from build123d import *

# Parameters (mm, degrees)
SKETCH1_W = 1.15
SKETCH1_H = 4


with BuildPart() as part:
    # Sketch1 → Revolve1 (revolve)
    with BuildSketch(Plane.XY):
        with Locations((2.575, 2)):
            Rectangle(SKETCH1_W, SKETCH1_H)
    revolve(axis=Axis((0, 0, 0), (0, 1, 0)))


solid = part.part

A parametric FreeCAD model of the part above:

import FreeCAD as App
import Part
import Sketcher

V = App.Vector
Q = App.Units.Quantity


def add_polygon(sketch, points):
    """Adds a closed chain of lines whose ends are joined by coincident constraints."""
    first, n = sketch.GeometryCount, len(points)
    for a, b in zip(points, points[1:] + points[:1]):
        sketch.addGeometry(Part.LineSegment(App.Vector(*a, 0), App.Vector(*b, 0)), False)
    for i in range(n):
        sketch.addConstraint(Sketcher.Constraint("Coincident", first + i, 2, first + (i + 1) % n, 1))

doc = App.newDocument("Part")
body = doc.addObject("PartDesign::Body", "Body")

sketch1 = body.newObject("Sketcher::SketchObject", "Sketch")
sketch1.AttachmentSupport = (doc.getObject("XY_Plane"), [""])
sketch1.MapMode = "FlatFace"
add_polygon(sketch1, [(2, 4), (2, 0), (3.15, 0), (3.15, 4)])
sketch1.addConstraint(Sketcher.Constraint("Vertical", 0))
sketch1.addConstraint(Sketcher.Constraint("Horizontal", 1))
sketch1.addConstraint(Sketcher.Constraint("Vertical", 2))
sketch1.addConstraint(Sketcher.Constraint("Horizontal", 3))
sketch1.addConstraint(Sketcher.Constraint("PointOnObject", 0, 2, -1))
sketch1.addConstraint(Sketcher.Constraint("DistanceY", 0, 2, 0, 1, Q("4 mm")))
sketch1.addConstraint(Sketcher.Constraint("DistanceX", -1, 1, 0, 2, Q("2 mm")))
sketch1.addConstraint(Sketcher.Constraint("DistanceX", 1, 1, 1, 2, Q("1.15 mm")))
revolution = body.newObject("PartDesign::Revolution", "Revolution")
revolution.Profile = sketch1
revolution.ReferenceAxis = (sketch1, ["V_Axis"])
revolution.Angle = 360

doc.recompute()
